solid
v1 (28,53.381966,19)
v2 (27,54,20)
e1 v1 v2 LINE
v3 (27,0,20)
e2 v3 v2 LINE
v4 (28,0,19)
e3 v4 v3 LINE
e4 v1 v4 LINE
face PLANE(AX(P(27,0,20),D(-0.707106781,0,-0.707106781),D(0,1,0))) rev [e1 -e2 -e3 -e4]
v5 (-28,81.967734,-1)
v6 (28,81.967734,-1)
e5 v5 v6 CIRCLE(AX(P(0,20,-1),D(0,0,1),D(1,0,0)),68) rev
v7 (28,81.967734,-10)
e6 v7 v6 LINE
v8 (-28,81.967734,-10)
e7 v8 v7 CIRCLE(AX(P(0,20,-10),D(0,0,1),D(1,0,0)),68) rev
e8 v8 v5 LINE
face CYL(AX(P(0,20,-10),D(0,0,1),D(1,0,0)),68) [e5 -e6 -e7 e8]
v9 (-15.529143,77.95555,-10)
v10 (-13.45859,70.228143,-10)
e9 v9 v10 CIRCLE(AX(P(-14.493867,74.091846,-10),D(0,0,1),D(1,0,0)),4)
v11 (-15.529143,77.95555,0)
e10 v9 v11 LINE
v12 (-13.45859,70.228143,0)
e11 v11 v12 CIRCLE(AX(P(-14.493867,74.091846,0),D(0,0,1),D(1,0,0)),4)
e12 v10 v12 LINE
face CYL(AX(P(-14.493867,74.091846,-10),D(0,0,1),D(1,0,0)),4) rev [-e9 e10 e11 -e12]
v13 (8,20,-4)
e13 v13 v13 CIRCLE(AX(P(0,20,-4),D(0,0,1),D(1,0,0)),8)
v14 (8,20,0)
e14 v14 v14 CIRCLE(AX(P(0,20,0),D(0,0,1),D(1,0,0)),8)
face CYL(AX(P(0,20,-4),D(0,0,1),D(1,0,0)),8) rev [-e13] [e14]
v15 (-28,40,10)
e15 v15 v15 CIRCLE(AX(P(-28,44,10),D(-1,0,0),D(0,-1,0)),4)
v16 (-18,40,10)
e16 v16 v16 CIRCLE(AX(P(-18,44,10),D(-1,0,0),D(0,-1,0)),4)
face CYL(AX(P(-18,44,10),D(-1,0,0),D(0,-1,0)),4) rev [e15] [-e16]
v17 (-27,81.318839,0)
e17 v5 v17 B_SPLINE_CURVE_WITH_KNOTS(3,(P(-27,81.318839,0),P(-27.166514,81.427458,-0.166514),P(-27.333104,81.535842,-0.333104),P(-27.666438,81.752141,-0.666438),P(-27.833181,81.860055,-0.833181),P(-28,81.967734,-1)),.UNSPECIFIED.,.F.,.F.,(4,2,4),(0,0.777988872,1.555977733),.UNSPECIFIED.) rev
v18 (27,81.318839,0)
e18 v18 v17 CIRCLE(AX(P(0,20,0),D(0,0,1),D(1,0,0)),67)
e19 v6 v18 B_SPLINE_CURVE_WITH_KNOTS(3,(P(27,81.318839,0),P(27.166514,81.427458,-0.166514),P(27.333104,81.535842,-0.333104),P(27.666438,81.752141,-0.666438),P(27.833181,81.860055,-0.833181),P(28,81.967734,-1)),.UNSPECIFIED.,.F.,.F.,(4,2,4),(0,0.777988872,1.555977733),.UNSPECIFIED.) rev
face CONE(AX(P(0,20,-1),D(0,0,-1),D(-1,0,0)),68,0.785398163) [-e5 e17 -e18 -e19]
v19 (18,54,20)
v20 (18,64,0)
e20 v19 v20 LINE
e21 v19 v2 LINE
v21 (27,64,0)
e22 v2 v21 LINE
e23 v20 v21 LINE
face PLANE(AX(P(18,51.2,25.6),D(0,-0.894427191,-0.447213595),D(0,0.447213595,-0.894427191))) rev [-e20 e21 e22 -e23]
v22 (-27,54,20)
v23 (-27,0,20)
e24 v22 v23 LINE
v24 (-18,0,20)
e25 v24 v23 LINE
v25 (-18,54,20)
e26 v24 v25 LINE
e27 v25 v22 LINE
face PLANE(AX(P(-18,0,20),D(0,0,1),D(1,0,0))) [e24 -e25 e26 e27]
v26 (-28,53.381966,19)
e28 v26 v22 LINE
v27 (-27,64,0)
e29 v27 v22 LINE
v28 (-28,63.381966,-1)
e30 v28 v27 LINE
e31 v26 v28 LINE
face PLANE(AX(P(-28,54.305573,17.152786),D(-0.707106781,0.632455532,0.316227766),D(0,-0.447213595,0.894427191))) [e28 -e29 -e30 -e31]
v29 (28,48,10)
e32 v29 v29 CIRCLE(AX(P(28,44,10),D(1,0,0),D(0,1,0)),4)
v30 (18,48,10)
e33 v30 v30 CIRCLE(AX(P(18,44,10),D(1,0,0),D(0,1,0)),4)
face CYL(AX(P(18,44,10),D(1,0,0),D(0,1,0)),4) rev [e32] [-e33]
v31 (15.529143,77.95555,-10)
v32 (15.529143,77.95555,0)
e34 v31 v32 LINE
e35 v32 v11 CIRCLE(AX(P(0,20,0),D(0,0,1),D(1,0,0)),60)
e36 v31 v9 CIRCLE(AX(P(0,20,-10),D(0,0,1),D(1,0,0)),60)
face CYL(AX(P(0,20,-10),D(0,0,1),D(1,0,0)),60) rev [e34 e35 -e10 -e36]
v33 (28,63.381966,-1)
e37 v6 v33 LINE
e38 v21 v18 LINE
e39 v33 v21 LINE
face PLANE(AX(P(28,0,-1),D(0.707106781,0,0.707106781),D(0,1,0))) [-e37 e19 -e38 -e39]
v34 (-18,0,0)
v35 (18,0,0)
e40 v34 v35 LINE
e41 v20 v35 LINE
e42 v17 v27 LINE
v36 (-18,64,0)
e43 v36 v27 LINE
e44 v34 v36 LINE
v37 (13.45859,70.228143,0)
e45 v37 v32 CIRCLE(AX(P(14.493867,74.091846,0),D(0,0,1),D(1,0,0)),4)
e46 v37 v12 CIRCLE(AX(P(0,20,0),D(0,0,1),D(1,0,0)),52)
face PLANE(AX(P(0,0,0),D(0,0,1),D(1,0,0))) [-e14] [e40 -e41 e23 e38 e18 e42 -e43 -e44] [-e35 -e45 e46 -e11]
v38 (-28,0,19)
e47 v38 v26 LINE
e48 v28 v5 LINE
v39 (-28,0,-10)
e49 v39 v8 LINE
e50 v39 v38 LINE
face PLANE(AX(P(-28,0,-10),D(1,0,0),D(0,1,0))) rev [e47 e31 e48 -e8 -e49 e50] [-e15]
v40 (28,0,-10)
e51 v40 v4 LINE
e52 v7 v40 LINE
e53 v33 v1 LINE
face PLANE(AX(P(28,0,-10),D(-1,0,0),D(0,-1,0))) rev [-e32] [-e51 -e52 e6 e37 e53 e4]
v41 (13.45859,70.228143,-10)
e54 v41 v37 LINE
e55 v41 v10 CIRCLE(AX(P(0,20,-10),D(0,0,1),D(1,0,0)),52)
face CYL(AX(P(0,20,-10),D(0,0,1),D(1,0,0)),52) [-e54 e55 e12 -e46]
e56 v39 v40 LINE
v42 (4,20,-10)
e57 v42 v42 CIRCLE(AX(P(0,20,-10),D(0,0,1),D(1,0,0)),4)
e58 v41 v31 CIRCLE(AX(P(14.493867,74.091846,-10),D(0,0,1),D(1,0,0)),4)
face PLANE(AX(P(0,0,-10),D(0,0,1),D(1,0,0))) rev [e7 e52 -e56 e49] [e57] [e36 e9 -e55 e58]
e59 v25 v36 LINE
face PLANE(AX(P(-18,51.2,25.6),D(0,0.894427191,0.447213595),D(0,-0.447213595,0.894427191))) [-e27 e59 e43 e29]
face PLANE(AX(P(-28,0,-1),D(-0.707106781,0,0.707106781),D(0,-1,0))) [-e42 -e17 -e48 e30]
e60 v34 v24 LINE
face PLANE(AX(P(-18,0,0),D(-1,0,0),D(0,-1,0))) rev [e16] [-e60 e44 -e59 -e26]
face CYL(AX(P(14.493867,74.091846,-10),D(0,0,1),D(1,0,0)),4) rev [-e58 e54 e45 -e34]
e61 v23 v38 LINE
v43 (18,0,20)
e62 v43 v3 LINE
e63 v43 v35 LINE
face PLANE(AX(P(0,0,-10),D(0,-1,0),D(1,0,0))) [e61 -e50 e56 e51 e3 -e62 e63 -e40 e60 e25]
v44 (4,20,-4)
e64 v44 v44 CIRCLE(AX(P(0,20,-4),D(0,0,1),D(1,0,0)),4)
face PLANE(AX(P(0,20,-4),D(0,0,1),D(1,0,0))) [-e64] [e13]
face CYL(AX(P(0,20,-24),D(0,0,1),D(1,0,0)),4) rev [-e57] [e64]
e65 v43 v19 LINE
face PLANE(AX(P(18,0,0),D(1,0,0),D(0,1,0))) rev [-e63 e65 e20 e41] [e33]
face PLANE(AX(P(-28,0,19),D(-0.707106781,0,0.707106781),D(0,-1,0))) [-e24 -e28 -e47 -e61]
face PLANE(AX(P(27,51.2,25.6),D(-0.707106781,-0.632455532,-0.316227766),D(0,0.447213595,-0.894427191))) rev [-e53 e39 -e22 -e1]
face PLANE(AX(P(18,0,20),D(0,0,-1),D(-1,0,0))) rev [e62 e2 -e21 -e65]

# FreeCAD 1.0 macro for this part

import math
import FreeCAD as App
import Part
import Sketcher

V = App.Vector


def edges_at(feature, points):
    """Names of the edges that pass closest to the given points."""
    edges = feature.Shape.Edges
    near = lambda p: min(range(len(edges)), key=lambda i: edges[i].distToShape(Part.Vertex(*p))[0])
    return sorted({f"Edge{near(p) + 1}" for p in points})


def add_polygon(sketch, points):
    """Adds a closed chain of lines whose ends are joined by coincident constraints."""
    first, n = sketch.GeometryCount, len(points)
    for a, b in zip(points, points[1:] + points[:1]):
        sketch.addGeometry(Part.LineSegment(App.Vector(*a, 0), App.Vector(*b, 0)), False)
    for i in range(n):
        sketch.addConstraint(Sketcher.Constraint("Coincident", first + i, 2, first + (i + 1) % n, 1))

doc = App.newDocument("Part")
body = doc.addObject("PartDesign::Body", "Body")

# Sketch on XY plane
sketch1 = body.newObject("Sketcher::SketchObject", "Sketch")
sketch1.AttachmentSupport = (doc.getObject("XY_Plane"), [""])
sketch1.MapMode = "FlatFace"
sketch1.addGeometry([
    Part.ArcOfCircle(Part.Circle(V(0, 20, 0), V(0, 0, 1), 68), math.radians(66), math.radians(114)),  # 0
    Part.LineSegment(V(-28, 82, 0), V(-28, 0, 0)),  # 1
    Part.LineSegment(V(-28, 0, 0), V(28, 0, 0)),  # 2
    Part.LineSegment(V(28, 0, 0), V(28, 82, 0)),  # 3
    Part.ArcOfCircle(Part.Circle(V(0, 20, 0), V(0, 0, 1), 60), math.radians(75), math.radians(105)),  # 4
    Part.ArcOfCircle(Part.Circle(V(14.5, 74.1, 0), V(0, 0, 1), 4), math.radians(-105), math.radians(75)),  # 5
    Part.ArcOfCircle(Part.Circle(V(0, 20, 0), V(0, 0, 1), 52), math.radians(75), math.radians(105)),  # 6
    Part.ArcOfCircle(Part.Circle(V(-14.5, 74.1, 0), V(0, 0, 1), 4), math.radians(105), math.radians(285)),  # 7
], False)
sketch1.addConstraint([
    Sketcher.Constraint("Coincident", 0, 2, 1, 1),
    Sketcher.Constraint("Coincident", 1, 2, 2, 1),
    Sketcher.Constraint("Coincident", 2, 2, 3, 1),
    Sketcher.Constraint("Coincident", 3, 2, 0, 1),
    Sketcher.Constraint("Tangent", 4, 1, 5, 2),
    Sketcher.Constraint("Tangent", 5, 1, 6, 1),
    Sketcher.Constraint("Tangent", 6, 2, 7, 2),
    Sketcher.Constraint("Tangent", 7, 1, 4, 2),
    Sketcher.Constraint("Vertical", 1),
    Sketcher.Constraint("Horizontal", 2),
    Sketcher.Constraint("Vertical", 3),
    Sketcher.Constraint("Coincident", 4, 3, 0, 3),
    Sketcher.Constraint("Coincident", 6, 3, 0, 3),
    Sketcher.Constraint("Symmetric", 1, 2, 2, 2, -1, 1),
    Sketcher.Constraint("Symmetric", 5, 3, 7, 3, -2),
    Sketcher.Constraint("Radius", 0, 68.0),
    Sketcher.Constraint("Radius", 4, 60.0),
    Sketcher.Constraint("Radius", 5, 4.0),
    Sketcher.Constraint("DistanceX", 2, 1, 2, 2, 56.0),
    Sketcher.Constraint("DistanceY", -1, 1, 0, 3, 20.0),
    Sketcher.Constraint("DistanceY", -1, 1, 4, 1, 77.95555),
])
pad1 = body.newObject("PartDesign::Pad", "Pad")
pad1.Profile = sketch1
pad1.Length = 10
pad1.Reversed = True

# Sketch on XY plane
sketch2 = body.newObject("Sketcher::SketchObject", "Sketch001")
sketch2.AttachmentSupport = (doc.getObject("XY_Plane"), [""])
sketch2.MapMode = "FlatFace"
sketch2.addGeometry(Part.Circle(V(0, 20, 0), V(0, 0, 1), 8), False)
sketch2.addConstraint([
    Sketcher.Constraint("PointOnObject", 0, 3, -2),
    Sketcher.Constraint("Diameter", 0, 16.0),
    Sketcher.Constraint("DistanceY", -1, 1, 0, 3, 20.0),
])
pocket1 = body.newObject("PartDesign::Pocket", "Pocket")
pocket1.Profile = sketch2
pocket1.Length = 4

# Sketch on XY plane
sketch3 = body.newObject("Sketcher::SketchObject", "Sketch002")
sketch3.AttachmentSupport = (doc.getObject("XY_Plane"), [""])
sketch3.MapMode = "FlatFace"
sketch3.addGeometry(Part.Circle(V(0, 20, 0), V(0, 0, 1), 4), False)
sketch3.addConstraint([
    Sketcher.Constraint("PointOnObject", 0, 3, -2),
    Sketcher.Constraint("Diameter", 0, 8.0),
    Sketcher.Constraint("DistanceY", -1, 1, 0, 3, 20.0),
])
pocket2 = body.newObject("PartDesign::Pocket", "Pocket001")
pocket2.Profile = sketch3
pocket2.Length = 24

# Sketch on YZ plane
sketch4 = body.newObject("Sketcher::SketchObject", "Sketch003")
sketch4.AttachmentSupport = (doc.getObject("YZ_Plane"), [""])
sketch4.MapMode = "FlatFace"
sketch4.AttachmentOffset = App.Placement(V(0, 0, -28), App.Rotation())
add_polygon(sketch4, [(64, 0), (0, 0), (0, 20), (54, 20)])  # lines 0-3
sketch4.addGeometry(Part.Circle(V(44, 10, 0), V(0, 0, 1), 4), False)  # 4
sketch4.addConstraint([
    Sketcher.Constraint("Horizontal", 0),
    Sketcher.Constraint("Vertical", 1),
    Sketcher.Constraint("Horizontal", 2),
    Sketcher.Constraint("Coincident", 0, 2, -1, 1),
    Sketcher.Constraint("Diameter", 4, 8.0),
    Sketcher.Constraint("DistanceX", 0, 2, 0, 1, 64.0),
    Sketcher.Constraint("DistanceX", 2, 1, 2, 2, 54.0),
    Sketcher.Constraint("DistanceY", 1, 1, 1, 2, 20.0),
    Sketcher.Constraint("DistanceX", -1, 1, 4, 3, 44.0),
    Sketcher.Constraint("DistanceY", -1, 1, 4, 3, 10.0),
])
pad2 = body.newObject("PartDesign::Pad", "Pad001")
pad2.Profile = sketch4
pad2.Length = 10

# Sketch on YZ plane
sketch5 = body.newObject("Sketcher::SketchObject", "Sketch004")
sketch5.AttachmentSupport = (doc.getObject("YZ_Plane"), [""])
sketch5.MapMode = "FlatFace"
sketch5.AttachmentOffset = App.Placement(V(0, 0, 28), App.Rotation())
add_polygon(sketch5, [(54, 20), (0, 20), (0, 0), (64, 0)])  # lines 0-3
sketch5.addGeometry(Part.Circle(V(44, 10, 0), V(0, 0, 1), 4), False)  # 4
sketch5.addConstraint([
    Sketcher.Constraint("Horizontal", 0),
    Sketcher.Constraint("Vertical", 1),
    Sketcher.Constraint("Horizontal", 2),
    Sketcher.Constraint("Coincident", 1, 2, -1, 1),
    Sketcher.Constraint("Diameter", 4, 8.0),
    Sketcher.Constraint("DistanceX", 0, 2, 0, 1, 54.0),
    Sketcher.Constraint("DistanceX", 2, 1, 2, 2, 64.0),
    Sketcher.Constraint("DistanceY", 1, 2, 1, 1, 20.0),
    Sketcher.Constraint("DistanceX", -1, 1, 4, 3, 44.0),
    Sketcher.Constraint("DistanceY", -1, 1, 4, 3, 10.0),
])
pad3 = body.newObject("PartDesign::Pad", "Pad002")
pad3.Profile = sketch5
pad3.Length = 10
pad3.Reversed = True
doc.recompute()

chamfer = body.newObject("PartDesign::Chamfer", "Chamfer")
chamfer.Base = (pad3, edges_at(pad3, [
    (28, 72.984, 0),
    (0, 88, 0),
    (-28, 72.984, 0),
    (-28, 27, 20),
    (-28, 59, 10),
    (28, 27, 20),
    (28, 59, 10),
]))
chamfer.Size = 1

doc.recompute()
